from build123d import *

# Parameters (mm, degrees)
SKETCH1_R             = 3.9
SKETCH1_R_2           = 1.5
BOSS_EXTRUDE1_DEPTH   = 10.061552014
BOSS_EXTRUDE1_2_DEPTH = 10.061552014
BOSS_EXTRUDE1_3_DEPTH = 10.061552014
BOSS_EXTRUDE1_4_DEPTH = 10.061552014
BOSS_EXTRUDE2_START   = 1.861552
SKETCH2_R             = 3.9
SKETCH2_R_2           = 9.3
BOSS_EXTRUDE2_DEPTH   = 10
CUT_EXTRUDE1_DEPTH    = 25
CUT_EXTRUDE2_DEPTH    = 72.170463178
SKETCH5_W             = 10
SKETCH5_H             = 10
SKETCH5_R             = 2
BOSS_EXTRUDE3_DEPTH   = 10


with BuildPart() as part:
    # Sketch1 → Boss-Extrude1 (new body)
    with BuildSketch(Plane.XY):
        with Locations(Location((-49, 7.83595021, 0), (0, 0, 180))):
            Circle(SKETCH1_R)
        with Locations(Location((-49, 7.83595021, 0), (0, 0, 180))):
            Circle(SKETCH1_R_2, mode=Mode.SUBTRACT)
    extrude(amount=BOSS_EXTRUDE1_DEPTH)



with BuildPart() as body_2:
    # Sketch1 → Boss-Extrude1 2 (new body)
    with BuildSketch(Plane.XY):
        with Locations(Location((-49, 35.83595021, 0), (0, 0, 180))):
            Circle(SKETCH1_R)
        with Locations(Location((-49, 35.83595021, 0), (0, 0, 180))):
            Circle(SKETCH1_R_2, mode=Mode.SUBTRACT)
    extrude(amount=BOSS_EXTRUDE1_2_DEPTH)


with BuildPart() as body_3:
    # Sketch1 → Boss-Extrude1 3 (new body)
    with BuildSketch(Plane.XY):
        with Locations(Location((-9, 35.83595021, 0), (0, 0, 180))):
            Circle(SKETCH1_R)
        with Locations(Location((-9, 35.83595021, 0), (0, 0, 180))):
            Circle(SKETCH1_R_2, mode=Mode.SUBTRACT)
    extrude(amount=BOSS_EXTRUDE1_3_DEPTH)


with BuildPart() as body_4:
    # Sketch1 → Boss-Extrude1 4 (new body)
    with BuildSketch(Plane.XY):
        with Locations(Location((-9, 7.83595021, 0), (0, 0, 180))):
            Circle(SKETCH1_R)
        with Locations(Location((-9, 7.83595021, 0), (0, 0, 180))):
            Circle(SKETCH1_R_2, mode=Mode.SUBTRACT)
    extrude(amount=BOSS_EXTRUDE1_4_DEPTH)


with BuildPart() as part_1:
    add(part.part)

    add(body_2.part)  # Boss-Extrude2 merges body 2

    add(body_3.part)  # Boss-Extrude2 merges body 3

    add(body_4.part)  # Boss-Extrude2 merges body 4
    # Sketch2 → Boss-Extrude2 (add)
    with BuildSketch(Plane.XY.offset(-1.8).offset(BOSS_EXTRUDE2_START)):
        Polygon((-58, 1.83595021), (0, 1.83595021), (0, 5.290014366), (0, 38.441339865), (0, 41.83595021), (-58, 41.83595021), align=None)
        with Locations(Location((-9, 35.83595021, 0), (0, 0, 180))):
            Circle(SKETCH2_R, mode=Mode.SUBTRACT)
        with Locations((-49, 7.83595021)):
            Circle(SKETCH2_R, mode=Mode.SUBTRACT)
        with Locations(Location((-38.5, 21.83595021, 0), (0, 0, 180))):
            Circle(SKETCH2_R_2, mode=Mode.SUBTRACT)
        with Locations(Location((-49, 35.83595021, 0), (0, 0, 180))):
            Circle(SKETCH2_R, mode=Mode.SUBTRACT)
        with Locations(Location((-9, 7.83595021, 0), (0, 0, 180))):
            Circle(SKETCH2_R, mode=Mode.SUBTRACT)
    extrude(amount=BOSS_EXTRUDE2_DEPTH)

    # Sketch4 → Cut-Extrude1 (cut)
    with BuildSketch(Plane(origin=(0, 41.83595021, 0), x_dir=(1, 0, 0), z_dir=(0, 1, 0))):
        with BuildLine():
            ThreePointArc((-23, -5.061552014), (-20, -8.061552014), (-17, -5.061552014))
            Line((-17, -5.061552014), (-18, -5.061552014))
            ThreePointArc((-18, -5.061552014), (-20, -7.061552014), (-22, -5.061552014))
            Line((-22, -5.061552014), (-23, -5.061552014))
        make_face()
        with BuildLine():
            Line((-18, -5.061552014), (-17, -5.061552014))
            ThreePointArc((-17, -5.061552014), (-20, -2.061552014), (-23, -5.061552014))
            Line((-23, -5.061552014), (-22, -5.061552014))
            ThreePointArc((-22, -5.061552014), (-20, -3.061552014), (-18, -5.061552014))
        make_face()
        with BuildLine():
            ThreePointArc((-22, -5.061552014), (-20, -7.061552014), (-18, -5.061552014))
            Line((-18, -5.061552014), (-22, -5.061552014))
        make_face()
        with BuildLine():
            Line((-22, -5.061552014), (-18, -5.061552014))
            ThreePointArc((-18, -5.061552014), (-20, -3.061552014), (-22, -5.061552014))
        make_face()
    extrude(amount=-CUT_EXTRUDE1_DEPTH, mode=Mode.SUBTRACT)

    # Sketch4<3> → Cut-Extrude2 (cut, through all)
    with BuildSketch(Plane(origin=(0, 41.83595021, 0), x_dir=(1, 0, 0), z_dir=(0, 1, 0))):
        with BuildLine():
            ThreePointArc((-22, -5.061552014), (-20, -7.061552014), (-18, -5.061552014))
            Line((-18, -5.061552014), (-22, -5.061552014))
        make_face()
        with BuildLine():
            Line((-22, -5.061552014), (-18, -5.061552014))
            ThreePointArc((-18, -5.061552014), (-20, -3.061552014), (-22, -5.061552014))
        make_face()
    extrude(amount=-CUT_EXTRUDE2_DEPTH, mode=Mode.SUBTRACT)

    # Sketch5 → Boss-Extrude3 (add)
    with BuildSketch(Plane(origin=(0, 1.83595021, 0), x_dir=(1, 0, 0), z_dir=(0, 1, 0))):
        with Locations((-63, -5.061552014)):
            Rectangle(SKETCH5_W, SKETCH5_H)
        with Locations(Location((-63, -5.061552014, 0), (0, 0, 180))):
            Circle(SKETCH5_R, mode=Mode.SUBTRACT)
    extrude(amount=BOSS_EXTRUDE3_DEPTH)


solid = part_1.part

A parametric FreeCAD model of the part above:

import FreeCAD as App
import Part
import Sketcher
from FreeCAD import Vector

doc = App.newDocument("Part")
body = doc.addObject("PartDesign::Body", "Body")

# Sketch on XY plane
sketch1 = body.newObject("Sketcher::SketchObject", "Sketch")
sketch1.AttachmentSupport = (doc.getObject("XY_Plane"), [""])
sketch1.MapMode = "FlatFace"
sketch1.addGeometry([
    Part.Circle(Vector(-49, 7.8, 0), Vector(0, 0, 1), 3.9),
    Part.Circle(Vector(-49, 7.8, 0), Vector(0, 0, 1), 1.5),
], False)
sketch1.addConstraint([
    Sketcher.Constraint("Coincident", 1, 3, 0, 3),
    Sketcher.Constraint("Diameter", 1, 3.0),
    Sketcher.Constraint("Diameter", 0, 7.8),
    Sketcher.Constraint("DistanceX", 0, 3, -1, 1, 49.0),
    Sketcher.Constraint("DistanceY", -1, 1, 0, 3, 7.83595),
])
pad1 = body.newObject("PartDesign::Pad", "Pad")
pad1.Profile = sketch1
pad1.Length = 10.061552
body2 = doc.addObject("PartDesign::Body", "Body001")

# Sketch on XY plane
sketch2 = body2.newObject("Sketcher::SketchObject", "Sketch001")
sketch2.AttachmentSupport = (doc.getObject("XY_Plane001"), [""])
sketch2.MapMode = "FlatFace"
sketch2.addGeometry([
    Part.Circle(Vector(-49, 35.8, 0), Vector(0, 0, 1), 3.9),
    Part.Circle(Vector(-49, 35.8, 0), Vector(0, 0, 1), 1.5),
], False)
sketch2.addConstraint([
    Sketcher.Constraint("Coincident", 1, 3, 0, 3),
    Sketcher.Constraint("Diameter", 1, 3.0),
    Sketcher.Constraint("Diameter", 0, 7.8),
    Sketcher.Constraint("DistanceX", 0, 3, -1, 1, 49.0),
    Sketcher.Constraint("DistanceY", -1, 1, 0, 3, 35.83595),
])
pad2 = body2.newObject("PartDesign::Pad", "Pad001")
pad2.Profile = sketch2
pad2.Length = 10.061552
body3 = doc.addObject("PartDesign::Body", "Body002")

# Sketch on XY plane
sketch3 = body3.newObject("Sketcher::SketchObject", "Sketch002")
sketch3.AttachmentSupport = (doc.getObject("XY_Plane002"), [""])
sketch3.MapMode = "FlatFace"
sketch3.addGeometry([
    Part.Circle(Vector(-9, 35.8, 0), Vector(0, 0, 1), 3.9),
    Part.Circle(Vector(-9, 35.8, 0), Vector(0, 0, 1), 1.5),
], False)
sketch3.addConstraint([
    Sketcher.Constraint("Coincident", 1, 3, 0, 3),
    Sketcher.Constraint("Diameter", 1, 3.0),
    Sketcher.Constraint("Diameter", 0, 7.8),
    Sketcher.Constraint("DistanceX", 0, 3, -1, 1, 9.0),
    Sketcher.Constraint("DistanceY", -1, 1, 0, 3, 35.83595),
])
pad3 = body3.newObject("PartDesign::Pad", "Pad002")
pad3.Profile = sketch3
pad3.Length = 10.061552
body4 = doc.addObject("PartDesign::Body", "Body003")

# Sketch on XY plane
sketch4 = body4.newObject("Sketcher::SketchObject", "Sketch003")
sketch4.AttachmentSupport = (doc.getObject("XY_Plane003"), [""])
sketch4.MapMode = "FlatFace"
sketch4.addGeometry([
    Part.Circle(Vector(-9, 7.8, 0), Vector(0, 0, 1), 3.9),
    Part.Circle(Vector(-9, 7.8, 0), Vector(0, 0, 1), 1.5),
], False)
sketch4.addConstraint([
    Sketcher.Constraint("Coincident", 1, 3, 0, 3),
    Sketcher.Constraint("Diameter", 1, 3.0),
    Sketcher.Constraint("Diameter", 0, 7.8),
    Sketcher.Constraint("DistanceX", 0, 3, -1, 1, 9.0),
    Sketcher.Constraint("DistanceY", -1, 1, 0, 3, 7.83595),
])
pad4 = body4.newObject("PartDesign::Pad", "Pad003")
pad4.Profile = sketch4
pad4.Length = 10.061552
body.AllowCompound = True
doc.recompute()

boolean = body.newObject("PartDesign::Boolean", "Boolean")
boolean.Type = "Fuse"
boolean.addObjects([body2])
doc.recompute()

boolean2 = body.newObject("PartDesign::Boolean", "Boolean001")
boolean2.Type = "Fuse"
boolean2.addObjects([body3])
doc.recompute()

boolean3 = body.newObject("PartDesign::Boolean", "Boolean002")
boolean3.Type = "Fuse"
boolean3.addObjects([body4])

# Sketch on XY plane
sketch5 = body.newObject("Sketcher::SketchObject", "Sketch004")
sketch5.AttachmentSupport = (doc.getObject("XY_Plane"), [""])
sketch5.MapMode = "FlatFace"
sketch5.AttachmentOffset = App.Placement(Vector(0, 0, 0.061552), App.Rotation())
sketch5.addGeometry([
    Part.LineSegment(Vector(-58, 1.8, 0), Vector(0, 1.8, 0)),  # 0
    Part.LineSegment(Vector(0, 1.8, 0), Vector(0, 41.8, 0)),  # 1
    Part.LineSegment(Vector(0, 41.8, 0), Vector(-58, 41.8, 0)),  # 2
    Part.LineSegment(Vector(-58, 41.8, 0), Vector(-58, 1.8, 0)),  # 3
    Part.Circle(Vector(-49, 7.8, 0), Vector(0, 0, 1), 3.9),  # 4
    Part.Circle(Vector(-9, 7.8, 0), Vector(0, 0, 1), 3.9),  # 5
    Part.Circle(Vector(-38.5, 21.8, 0), Vector(0, 0, 1), 9.3),  # 6
    Part.Circle(Vector(-49, 35.8, 0), Vector(0, 0, 1), 3.9),  # 7
    Part.Circle(Vector(-9, 35.8, 0), Vector(0, 0, 1), 3.9),  # 8
], False)
sketch5.addConstraint([
    Sketcher.Constraint("Coincident", 0, 2, 1, 1),
    Sketcher.Constraint("Coincident", 1, 2, 2, 1),
    Sketcher.Constraint("Coincident", 2, 2, 3, 1),
    Sketcher.Constraint("Coincident", 3, 2, 0, 1),
    Sketcher.Constraint("Horizontal", 0),
    Sketcher.Constraint("Vertical", 1),
    Sketcher.Constraint("Horizontal", 2),
    Sketcher.Constraint("Vertical", 3),
    Sketcher.Constraint("Equal", 4, 5),
    Sketcher.Constraint("Equal", 5, 7),
    Sketcher.Constraint("Equal", 7, 8),
    Sketcher.Constraint("PointOnObject", 0, 2, -2),
    Sketcher.Constraint("Horizontal", 4, 3, 5, 3),
    Sketcher.Constraint("Horizontal", 7, 3, 8, 3),
    Sketcher.Constraint("Vertical", 4, 3, 7, 3),
    Sketcher.Constraint("Vertical", 5, 3, 8, 3),
    Sketcher.Constraint("Diameter", 4, 7.8),
    Sketcher.Constraint("Diameter", 6, 18.6),
    Sketcher.Constraint("DistanceX", 0, 1, 0, 2, 58.0),
    Sketcher.Constraint("DistanceY", 1, 1, 1, 2, 40.0),
    Sketcher.Constraint("DistanceX", 4, 3, -1, 1, 49.0),
    Sketcher.Constraint("DistanceX", 5, 3, -1, 1, 9.0),
    Sketcher.Constraint("DistanceY", 4, 3, 6, 3, 14.0),
    Sketcher.Constraint("DistanceY", 6, 3, 7, 3, 14.0),
    Sketcher.Constraint("DistanceY", 0, 2, 5, 3, 6.0),
    Sketcher.Constraint("DistanceX", 6, 3, -1, 1, 38.5),
    Sketcher.Constraint("DistanceY", -1, 1, 4, 3, 7.83595),
])
pad5 = body.newObject("PartDesign::Pad", "Pad004")
pad5.Profile = sketch5
pad5.Length = 10

# Sketch on XZ plane
sketch6 = body.newObject("Sketcher::SketchObject", "Sketch005")
sketch6.AttachmentSupport = (doc.getObject("XZ_Plane"), [""])
sketch6.MapMode = "FlatFace"
sketch6.AttachmentOffset = App.Placement(Vector(0, 0, -41.83595), App.Rotation())
sketch6.addGeometry(Part.Circle(Vector(-20, 5.1, 0), Vector(0, 0, 1), 3), False)
sketch6.addConstraint([
    Sketcher.Constraint("Diameter", 0, 6.0),
    Sketcher.Constraint("DistanceX", 0, 3, -1, 1, 20.0),
    Sketcher.Constraint("DistanceY", -1, 1, 0, 3, 5.061552),
])
pocket1 = body.newObject("PartDesign::Pocket", "Pocket")
pocket1.Profile = sketch6
pocket1.Length = 25
pocket1.Reversed = True

# Sketch on XZ plane
sketch7 = body.newObject("Sketcher::SketchObject", "Sketch006")
sketch7.AttachmentSupport = (doc.getObject("XZ_Plane"), [""])
sketch7.MapMode = "FlatFace"
sketch7.AttachmentOffset = App.Placement(Vector(0, 0, -41.83595), App.Rotation())
sketch7.addGeometry(Part.Circle(Vector(-20, 5.1, 0), Vector(0, 0, 1), 2), False)
sketch7.addConstraint([
    Sketcher.Constraint("Diameter", 0, 4.0),
    Sketcher.Constraint("DistanceX", 0, 3, -1, 1, 20.0),
    Sketcher.Constraint("DistanceY", -1, 1, 0, 3, 5.061552),
])
pocket2 = body.newObject("PartDesign::Pocket", "Pocket001")
pocket2.Profile = sketch7
pocket2.Type = "ThroughAll"
pocket2.Reversed = True

# Sketch on XZ plane
sketch8 = body.newObject("Sketcher::SketchObject", "Sketch007")
sketch8.AttachmentSupport = (doc.getObject("XZ_Plane"), [""])
sketch8.MapMode = "FlatFace"
sketch8.AttachmentOffset = App.Placement(Vector(0, 0, -1.83595), App.Rotation())
sketch8.addGeometry([
    Part.LineSegment(Vector(-68, 0.1, 0), Vector(-68, 10.1, 0)),  # 0
    Part.LineSegment(Vector(-68, 10.1, 0), Vector(-58, 10.1, 0)),  # 1
    Part.LineSegment(Vector(-58, 10.1, 0), Vector(-58, 0.1, 0)),  # 2
    Part.LineSegment(Vector(-58, 0.1, 0), Vector(-68, 0.1, 0)),  # 3
    Part.Circle(Vector(-63, 5.1, 0), Vector(0, 0, 1), 2),  # 4
], False)
sketch8.addConstraint([
    Sketcher.Constraint("Coincident", 0, 2, 1, 1),
    Sketcher.Constraint("Coincident", 1, 2, 2, 1),
    Sketcher.Constraint("Coincident", 2, 2, 3, 1),
    Sketcher.Constraint("Coincident", 3, 2, 0, 1),
    Sketcher.Constraint("Vertical", 0),
    Sketcher.Constraint("Horizontal", 1),
    Sketcher.Constraint("Vertical", 2),
    Sketcher.Constraint("Horizontal", 3),
    Sketcher.Constraint("Equal", 3, 0),
    Sketcher.Constraint("Diameter", 4, 4.0),
    Sketcher.Constraint("DistanceX", 1, 1, 1, 2, 10.0),
    Sketcher.Constraint("DistanceX", 4, 3, -1, 1, 63.0),
    Sketcher.Constraint("DistanceX", 0, 2, -1, 1, 68.0),
    Sketcher.Constraint("DistanceY", 4, 3, 0, 2, 5.0),
    Sketcher.Constraint("DistanceY", -1, 1, 4, 3, 5.061552),
])
pad6 = body.newObject("PartDesign::Pad", "Pad005")
pad6.Profile = sketch8
pad6.Length = 10
pad6.Reversed = True

doc.recompute()
